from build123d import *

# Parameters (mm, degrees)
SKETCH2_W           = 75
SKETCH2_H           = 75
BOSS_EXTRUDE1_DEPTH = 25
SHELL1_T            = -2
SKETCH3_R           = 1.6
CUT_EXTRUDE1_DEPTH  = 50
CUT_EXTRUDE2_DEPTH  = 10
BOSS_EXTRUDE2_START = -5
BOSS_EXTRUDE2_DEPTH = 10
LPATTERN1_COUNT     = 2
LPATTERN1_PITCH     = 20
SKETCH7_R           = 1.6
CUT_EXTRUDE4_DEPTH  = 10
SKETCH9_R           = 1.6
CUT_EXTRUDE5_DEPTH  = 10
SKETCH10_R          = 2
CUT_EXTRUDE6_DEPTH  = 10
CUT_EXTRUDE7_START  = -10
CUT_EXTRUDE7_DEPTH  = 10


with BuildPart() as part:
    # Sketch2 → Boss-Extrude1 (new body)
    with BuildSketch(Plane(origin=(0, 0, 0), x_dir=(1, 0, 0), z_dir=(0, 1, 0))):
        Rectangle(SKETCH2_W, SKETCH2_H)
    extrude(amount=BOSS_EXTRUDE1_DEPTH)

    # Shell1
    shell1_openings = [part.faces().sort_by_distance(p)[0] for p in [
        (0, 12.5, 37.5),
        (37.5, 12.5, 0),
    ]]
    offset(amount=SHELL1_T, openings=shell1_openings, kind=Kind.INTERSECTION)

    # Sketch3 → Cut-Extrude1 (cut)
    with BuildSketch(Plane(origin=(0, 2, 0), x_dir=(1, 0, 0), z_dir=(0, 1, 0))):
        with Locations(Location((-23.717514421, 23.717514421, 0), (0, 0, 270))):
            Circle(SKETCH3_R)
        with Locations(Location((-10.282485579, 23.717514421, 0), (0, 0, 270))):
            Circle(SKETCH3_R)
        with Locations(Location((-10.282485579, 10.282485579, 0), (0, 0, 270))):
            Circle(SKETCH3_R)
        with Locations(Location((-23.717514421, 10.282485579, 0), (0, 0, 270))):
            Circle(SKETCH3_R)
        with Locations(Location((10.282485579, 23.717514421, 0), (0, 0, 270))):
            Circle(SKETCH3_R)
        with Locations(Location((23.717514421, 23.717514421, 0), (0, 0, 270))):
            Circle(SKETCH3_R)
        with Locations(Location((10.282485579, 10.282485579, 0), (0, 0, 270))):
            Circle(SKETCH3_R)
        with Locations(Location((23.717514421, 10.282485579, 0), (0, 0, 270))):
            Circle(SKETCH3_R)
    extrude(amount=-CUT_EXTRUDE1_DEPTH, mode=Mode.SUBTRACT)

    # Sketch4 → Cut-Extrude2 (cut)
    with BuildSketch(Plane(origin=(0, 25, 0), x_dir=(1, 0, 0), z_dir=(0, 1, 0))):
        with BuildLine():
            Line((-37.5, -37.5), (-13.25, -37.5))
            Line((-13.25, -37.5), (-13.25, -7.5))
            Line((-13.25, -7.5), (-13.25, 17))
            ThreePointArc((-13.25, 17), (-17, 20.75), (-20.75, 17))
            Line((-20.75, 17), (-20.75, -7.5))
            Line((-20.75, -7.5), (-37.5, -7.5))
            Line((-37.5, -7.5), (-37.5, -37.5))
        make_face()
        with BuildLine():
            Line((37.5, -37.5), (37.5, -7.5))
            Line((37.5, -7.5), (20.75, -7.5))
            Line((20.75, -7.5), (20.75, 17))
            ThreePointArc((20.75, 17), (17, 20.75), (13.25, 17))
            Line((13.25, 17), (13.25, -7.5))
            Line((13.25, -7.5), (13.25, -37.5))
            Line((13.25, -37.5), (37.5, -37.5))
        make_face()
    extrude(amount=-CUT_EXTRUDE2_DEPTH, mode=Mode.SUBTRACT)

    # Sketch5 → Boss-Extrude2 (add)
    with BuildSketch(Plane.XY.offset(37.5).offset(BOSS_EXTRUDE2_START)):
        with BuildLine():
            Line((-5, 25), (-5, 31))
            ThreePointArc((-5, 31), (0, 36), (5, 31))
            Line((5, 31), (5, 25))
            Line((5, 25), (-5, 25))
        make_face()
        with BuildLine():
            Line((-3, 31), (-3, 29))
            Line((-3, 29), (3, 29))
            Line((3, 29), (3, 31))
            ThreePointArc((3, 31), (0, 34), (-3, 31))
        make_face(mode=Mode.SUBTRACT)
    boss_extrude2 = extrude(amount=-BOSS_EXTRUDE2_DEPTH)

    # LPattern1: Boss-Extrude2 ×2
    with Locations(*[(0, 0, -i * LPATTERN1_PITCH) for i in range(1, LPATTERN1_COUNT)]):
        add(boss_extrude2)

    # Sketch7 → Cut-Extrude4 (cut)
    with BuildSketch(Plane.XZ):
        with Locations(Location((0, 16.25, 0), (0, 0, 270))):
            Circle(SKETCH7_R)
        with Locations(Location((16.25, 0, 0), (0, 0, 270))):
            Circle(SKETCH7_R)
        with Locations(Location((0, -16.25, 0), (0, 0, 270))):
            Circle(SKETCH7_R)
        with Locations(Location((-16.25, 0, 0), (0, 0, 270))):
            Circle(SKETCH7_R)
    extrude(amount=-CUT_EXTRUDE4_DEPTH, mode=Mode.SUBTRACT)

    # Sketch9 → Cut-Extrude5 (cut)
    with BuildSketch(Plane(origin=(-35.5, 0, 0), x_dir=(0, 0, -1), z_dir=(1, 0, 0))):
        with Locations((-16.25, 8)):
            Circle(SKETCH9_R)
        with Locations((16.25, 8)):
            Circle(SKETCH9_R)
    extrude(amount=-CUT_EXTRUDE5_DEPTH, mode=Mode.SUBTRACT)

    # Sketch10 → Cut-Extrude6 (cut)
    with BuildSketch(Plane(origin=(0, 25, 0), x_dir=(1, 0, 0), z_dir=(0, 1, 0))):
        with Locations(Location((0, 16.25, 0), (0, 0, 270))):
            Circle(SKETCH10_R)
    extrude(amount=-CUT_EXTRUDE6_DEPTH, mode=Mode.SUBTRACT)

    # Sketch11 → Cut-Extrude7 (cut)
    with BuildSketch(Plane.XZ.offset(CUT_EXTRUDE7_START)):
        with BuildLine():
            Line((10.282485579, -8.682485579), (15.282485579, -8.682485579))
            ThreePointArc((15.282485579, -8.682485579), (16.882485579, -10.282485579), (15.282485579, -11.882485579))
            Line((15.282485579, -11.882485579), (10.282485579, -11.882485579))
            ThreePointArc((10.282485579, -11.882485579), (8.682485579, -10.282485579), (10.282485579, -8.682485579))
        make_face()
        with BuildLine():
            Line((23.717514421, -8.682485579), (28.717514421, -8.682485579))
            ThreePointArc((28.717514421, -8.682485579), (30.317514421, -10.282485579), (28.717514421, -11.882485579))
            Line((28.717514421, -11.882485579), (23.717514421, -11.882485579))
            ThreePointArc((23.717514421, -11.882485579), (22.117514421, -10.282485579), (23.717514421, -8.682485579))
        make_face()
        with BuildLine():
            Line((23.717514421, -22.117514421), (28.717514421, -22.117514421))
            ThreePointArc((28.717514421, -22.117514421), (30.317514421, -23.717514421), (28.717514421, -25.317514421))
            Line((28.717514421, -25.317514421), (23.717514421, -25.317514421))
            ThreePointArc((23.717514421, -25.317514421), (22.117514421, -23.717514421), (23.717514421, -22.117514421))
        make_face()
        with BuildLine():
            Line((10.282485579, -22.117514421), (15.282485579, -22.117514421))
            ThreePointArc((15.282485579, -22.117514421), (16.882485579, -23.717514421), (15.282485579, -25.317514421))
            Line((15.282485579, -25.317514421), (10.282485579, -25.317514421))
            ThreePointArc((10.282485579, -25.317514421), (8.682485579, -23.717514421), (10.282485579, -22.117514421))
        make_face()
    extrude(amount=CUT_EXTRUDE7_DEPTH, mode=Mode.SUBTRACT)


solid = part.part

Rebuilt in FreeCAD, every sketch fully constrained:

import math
import FreeCAD as App
import Part
import Sketcher


def faces_at(feature, points):
    """Names of the faces that lie closest to the given points."""
    faces = feature.Shape.Faces
    near = lambda p: min(range(len(faces)), key=lambda i: faces[i].distToShape(Part.Vertex(*p))[0])
    return sorted({f"Face{near(p) + 1}" for p in points})

doc = App.newDocument("Part")
body = doc.addObject("PartDesign::Body", "Body")

sketch1 = body.newObject("Sketcher::SketchObject", "Sketch")
sketch1.AttachmentSupport = (doc.getObject("XZ_Plane"), [""])
sketch1.MapMode = "FlatFace"
sketch1.addGeometry(Part.LineSegment(App.Vector(-38, -38, 0), App.Vector(-38, 38, 0)), False)
sketch1.addGeometry(Part.LineSegment(App.Vector(-38, 38, 0), App.Vector(38, 38, 0)), False)
sketch1.addGeometry(Part.LineSegment(App.Vector(38, 38, 0), App.Vector(38, -38, 0)), False)
sketch1.addGeometry(Part.LineSegment(App.Vector(38, -38, 0), App.Vector(-38, -38, 0)), False)
sketch1.addConstraint(Sketcher.Constraint("Coincident", 0, 2, 1, 1))
sketch1.addConstraint(Sketcher.Constraint("Coincident", 1, 2, 2, 1))
sketch1.addConstraint(Sketcher.Constraint("Coincident", 2, 2, 3, 1))
sketch1.addConstraint(Sketcher.Constraint("Coincident", 3, 2, 0, 1))
sketch1.addConstraint(Sketcher.Constraint("Vertical", 0))
sketch1.addConstraint(Sketcher.Constraint("Horizontal", 1))
sketch1.addConstraint(Sketcher.Constraint("Vertical", 2))
sketch1.addConstraint(Sketcher.Constraint("Horizontal", 3))
sketch1.addConstraint(Sketcher.Constraint("Symmetric", 0, 2, 2, 2, -1, 1))
sketch1.addConstraint(Sketcher.Constraint("Equal", 3, 0))
sketch1.addConstraint(Sketcher.Constraint("DistanceX", 1, 1, 1, 2, 75.0))
pad1 = body.newObject("PartDesign::Pad", "Pad")
pad1.Profile = sketch1
pad1.Length = 25
pad1.Reversed = True
doc.recompute()

thickness = body.newObject("PartDesign::Thickness", "Thickness")
thickness.Base = (pad1, faces_at(pad1, [(0, 12.5, 37.5), (37.5, 12.5, 0)]))
thickness.Value = 2
thickness.Reversed = True
thickness.Join = "Intersection"

sketch2 = body.newObject("Sketcher::SketchObject", "Sketch001")
sketch2.AttachmentSupport = (doc.getObject("XZ_Plane"), [""])
sketch2.MapMode = "FlatFace"
sketch2.AttachmentOffset = App.Placement(App.Vector(0, 0, -2), App.Rotation())
sketch2.addGeometry(Part.Circle(App.Vector(-23.7, -23.7, 0), App.Vector(0, 0, 1), 1.6), False)
sketch2.addGeometry(Part.Circle(App.Vector(-10.3, -23.7, 0), App.Vector(0, 0, 1), 1.6), False)
sketch2.addGeometry(Part.Circle(App.Vector(-10.3, -10.3, 0), App.Vector(0, 0, 1), 1.6), False)
sketch2.addGeometry(Part.Circle(App.Vector(-23.7, -10.3, 0), App.Vector(0, 0, 1), 1.6), False)
sketch2.addGeometry(Part.Circle(App.Vector(10.3, -23.7, 0), App.Vector(0, 0, 1), 1.6), False)
sketch2.addGeometry(Part.Circle(App.Vector(23.7, -23.7, 0), App.Vector(0, 0, 1), 1.6), False)
sketch2.addGeometry(Part.Circle(App.Vector(10.3, -10.3, 0), App.Vector(0, 0, 1), 1.6), False)
sketch2.addGeometry(Part.Circle(App.Vector(23.7, -10.3, 0), App.Vector(0, 0, 1), 1.6), False)
sketch2.addConstraint(Sketcher.Constraint("Equal", 0, 1))
sketch2.addConstraint(Sketcher.Constraint("Equal", 1, 2))
sketch2.addConstraint(Sketcher.Constraint("Equal", 2, 3))
sketch2.addConstraint(Sketcher.Constraint("Equal", 3, 4))
sketch2.addConstraint(Sketcher.Constraint("Equal", 4, 5))
sketch2.addConstraint(Sketcher.Constraint("Equal", 5, 6))
sketch2.addConstraint(Sketcher.Constraint("Equal", 6, 7))
sketch2.addConstraint(Sketcher.Constraint("Symmetric", 1, 3, 4, 3, -2))
sketch2.addConstraint(Sketcher.Constraint("Symmetric", 0, 3, 5, 3, -2))
sketch2.addConstraint(Sketcher.Constraint("Symmetric", 2, 3, 6, 3, -2))
sketch2.addConstraint(Sketcher.Constraint("Symmetric", 3, 3, 7, 3, -2))
sketch2.addConstraint(Sketcher.Constraint("Horizontal", 0, 3, 1, 3))
sketch2.addConstraint(Sketcher.Constraint("Horizontal", 2, 3, 3, 3))
sketch2.addConstraint(Sketcher.Constraint("Vertical", 1, 3, 2, 3))
sketch2.addConstraint(Sketcher.Constraint("Vertical", 0, 3, 3, 3))
sketch2.addConstraint(Sketcher.Constraint("Diameter", 0, 3.2))
sketch2.addConstraint(Sketcher.Constraint("DistanceX", 0, 3, 4, 3, 34.0))
sketch2.addConstraint(Sketcher.Constraint("DistanceX", 0, 3, 1, 3, 13.435029))
sketch2.addConstraint(Sketcher.Constraint("DistanceY", 1, 3, 2, 3, 13.435029))
sketch2.addConstraint(Sketcher.Constraint("DistanceY", 0, 3, -1, 1, 23.717514))
pocket1 = body.newObject("PartDesign::Pocket", "Pocket")
pocket1.Profile = sketch2
pocket1.Length = 50
pocket1.Reversed = True

sketch3 = body.newObject("Sketcher::SketchObject", "Sketch002")
sketch3.AttachmentSupport = (doc.getObject("XZ_Plane"), [""])
sketch3.MapMode = "FlatFace"
sketch3.AttachmentOffset = App.Placement(App.Vector(0, 0, -25), App.Rotation())
sketch3.addGeometry(Part.LineSegment(App.Vector(-37.5, 37.5, 0), App.Vector(-13.2, 37.5, 0)), False)
sketch3.addGeometry(Part.LineSegment(App.Vector(-13.2, 37.5, 0), App.Vector(-13.2, -17, 0)), False)
sketch3.addGeometry(Part.ArcOfCircle(Part.Circle(App.Vector(-17, -17, 0), App.Vector(0, 0, 1), 3.8), math.radians(180), math.radians(360)), False)
sketch3.addGeometry(Part.LineSegment(App.Vector(-20.8, -17, 0), App.Vector(-20.8, 7.5, 0)), False)
sketch3.addGeometry(Part.LineSegment(App.Vector(-20.8, 7.5, 0), App.Vector(-37.5, 7.5, 0)), False)
sketch3.addGeometry(Part.LineSegment(App.Vector(-37.5, 7.5, 0), App.Vector(-37.5, 37.5, 0)), False)
sketch3.addGeometry(Part.LineSegment(App.Vector(37.5, 37.5, 0), App.Vector(37.5, 7.5, 0)), False)
sketch3.addGeometry(Part.LineSegment(App.Vector(37.5, 7.5, 0), App.Vector(20.8, 7.5, 0)), False)
sketch3.addGeometry(Part.LineSegment(App.Vector(20.8, 7.5, 0), App.Vector(20.8, -17, 0)), False)
sketch3.addGeometry(Part.ArcOfCircle(Part.Circle(App.Vector(17, -17, 0), App.Vector(0, 0, 1), 3.8), math.radians(180), math.radians(360)), False)
sketch3.addGeometry(Part.LineSegment(App.Vector(13.2, -17, 0), App.Vector(13.2, 37.5, 0)), False)
sketch3.addGeometry(Part.LineSegment(App.Vector(13.2, 37.5, 0), App.Vector(37.5, 37.5, 0)), False)
sketch3.addConstraint(Sketcher.Constraint("Coincident", 0, 2, 1, 1))
sketch3.addConstraint(Sketcher.Constraint("Tangent", 1, 2, 2, 2))
sketch3.addConstraint(Sketcher.Constraint("Tangent", 2, 1, 3, 1))
sketch3.addConstraint(Sketcher.Constraint("Coincident", 3, 2, 4, 1))
sketch3.addConstraint(Sketcher.Constraint("Coincident", 4, 2, 5, 1))
sketch3.addConstraint(Sketcher.Constraint("Coincident", 5, 2, 0, 1))
sketch3.addConstraint(Sketcher.Constraint("Coincident", 6, 2, 7, 1))
sketch3.addConstraint(Sketcher.Constraint("Coincident", 7, 2, 8, 1))
sketch3.addConstraint(Sketcher.Constraint("Tangent", 8, 2, 9, 2))
sketch3.addConstraint(Sketcher.Constraint("Tangent", 9, 1, 10, 1))
sketch3.addConstraint(Sketcher.Constraint("Coincident", 10, 2, 11, 1))
sketch3.addConstraint(Sketcher.Constraint("Coincident", 11, 2, 6, 1))
sketch3.addConstraint(Sketcher.Constraint("Horizontal", 0))
sketch3.addConstraint(Sketcher.Constraint("Vertical", 1))
sketch3.addConstraint(Sketcher.Constraint("Vertical", 3))
sketch3.addConstraint(Sketcher.Constraint("Horizontal", 4))
sketch3.addConstraint(Sketcher.Constraint("Vertical", 5))
sketch3.addConstraint(Sketcher.Constraint("Vertical", 6))
sketch3.addConstraint(Sketcher.Constraint("Horizontal", 7))
sketch3.addConstraint(Sketcher.Constraint("Vertical", 8))
sketch3.addConstraint(Sketcher.Constraint("Vertical", 10))
sketch3.addConstraint(Sketcher.Constraint("Horizontal", 11))
sketch3.addConstraint(Sketcher.Constraint("Equal", 2, 9))
sketch3.addConstraint(Sketcher.Constraint("Symmetric", 2, 3, 9, 3, -2))
sketch3.addConstraint(Sketcher.Constraint("Symmetric", 4, 2, 6, 2, -2))
sketch3.addConstraint(Sketcher.Constraint("Horizontal", 5, 2, 10, 2))
sketch3.addConstraint(Sketcher.Constraint("DistanceY", 5, 1, 5, 2, 30.0))
sketch3.addConstraint(Sketcher.Constraint("Radius", 2, 3.75))
sketch3.addConstraint(Sketcher.Constraint("DistanceY", 1, 2, 1, 1, 54.5))
sketch3.addConstraint(Sketcher.Constraint("DistanceX", 2, 3, -1, 1, 17.0))
sketch3.addConstraint(Sketcher.Constraint("DistanceY", 2, 3, -1, 1, 17.0))
sketch3.addConstraint(Sketcher.Constraint("DistanceX", 0, 1, 0, 2, 24.25))
pocket2 = body.newObject("PartDesign::Pocket", "Pocket001")
pocket2.Profile = sketch3
pocket2.Length = 10
pocket2.Reversed = True

sketch4 = body.newObject("Sketcher::SketchObject", "Sketch003")
sketch4.AttachmentSupport = (doc.getObject("XY_Plane"), [""])
sketch4.MapMode = "FlatFace"
sketch4.AttachmentOffset = App.Placement(App.Vector(0, 0, 32.5), App.Rotation())
sketch4.addGeometry(Part.LineSegment(App.Vector(-5, 31, 0), App.Vector(-5, 25, 0)), False)
sketch4.addGeometry(Part.LineSegment(App.Vector(-5, 25, 0), App.Vector(5, 25, 0)), False)
sketch4.addGeometry(Part.LineSegment(App.Vector(5, 25, 0), App.Vector(5, 31, 0)), False)
sketch4.addGeometry(Part.ArcOfCircle(Part.Circle(App.Vector(0, 31, 0), App.Vector(0, 0, 1), 5), math.radians(0), math.radians(180)), False)
sketch4.addGeometry(Part.ArcOfCircle(Part.Circle(App.Vector(0, 31, 0), App.Vector(0, 0, 1), 3), math.radians(0), math.radians(180)), False)
sketch4.addGeometry(Part.LineSegment(App.Vector(3, 31, 0), App.Vector(3, 29, 0)), False)
sketch4.addGeometry(Part.LineSegment(App.Vector(3, 29, 0), App.Vector(-3, 29, 0)), False)
sketch4.addGeometry(Part.LineSegment(App.Vector(-3, 29, 0), App.Vector(-3, 31, 0)), False)
sketch4.addConstraint(Sketcher.Constraint("Coincident", 0, 2, 1, 1))
sketch4.addConstraint(Sketcher.Constraint("Coincident", 1, 2, 2, 1))
sketch4.addConstraint(Sketcher.Constraint("Tangent", 2, 2, 3, 1))
sketch4.addConstraint(Sketcher.Constraint("Tangent", 3, 2, 0, 1))
sketch4.addConstraint(Sketcher.Constraint("Tangent", 4, 1, 5, 1))
sketch4.addConstraint(Sketcher.Constraint("Coincident", 5, 2, 6, 1))
sketch4.addConstraint(Sketcher.Constraint("Coincident", 6, 2, 7, 1))
sketch4.addConstraint(Sketcher.Constraint("Tangent", 7, 2, 4, 2))
sketch4.addConstraint(Sketcher.Constraint("Vertical", 0))
sketch4.addConstraint(Sketcher.Constraint("Horizontal", 1))
sketch4.addConstraint(Sketcher.Constraint("Vertical", 2))
sketch4.addConstraint(Sketcher.Constraint("Vertical", 5))
sketch4.addConstraint(Sketcher.Constraint("Horizontal", 6))
sketch4.addConstraint(Sketcher.Constraint("Vertical", 7))
sketch4.addConstraint(Sketcher.Constraint("Coincident", 4, 3, 3, 3))
sketch4.addConstraint(Sketcher.Constraint("PointOnObject", 3, 3, -2))
sketch4.addConstraint(Sketcher.Constraint("Equal", 6, 0))
sketch4.addConstraint(Sketcher.Constraint("Radius", 3, 5.0))
sketch4.addConstraint(Sketcher.Constraint("Radius", 4, 3.0))
sketch4.addConstraint(Sketcher.Constraint("DistanceY", 5, 2, 5, 1, 2.0))
sketch4.addConstraint(Sketcher.Constraint("DistanceY", -1, 1, 3, 3, 31.0))
pad2 = body.newObject("PartDesign::Pad", "Pad001")
pad2.Profile = sketch4
pad2.Length = 10
pad2.Reversed = True
doc.recompute()

linearpattern = body.newObject("PartDesign::LinearPattern", "LinearPattern")
linearpattern.Originals = [pad2]
linearpattern.Direction = (doc.getObject("Z_Axis"), [""])
linearpattern.Mode = "offset"
linearpattern.Offset = 20
linearpattern.Occurrences = 2
linearpattern.Reversed = True
body.Tip = linearpattern

sketch5 = body.newObject("Sketcher::SketchObject", "Sketch004")
sketch5.AttachmentSupport = (doc.getObject("XZ_Plane"), [""])
sketch5.MapMode = "FlatFace"
sketch5.addGeometry(Part.Circle(App.Vector(0, 16.2, 0), App.Vector(0, 0, 1), 1.6), False)
sketch5.addGeometry(Part.Circle(App.Vector(16.2, 0, 0), App.Vector(0, 0, 1), 1.6), False)
sketch5.addGeometry(Part.Circle(App.Vector(0, -16.2, 0), App.Vector(0, 0, 1), 1.6), False)
sketch5.addGeometry(Part.Circle(App.Vector(-16.2, 0, 0), App.Vector(0, 0, 1), 1.6), False)
sketch5.addConstraint(Sketcher.Constraint("Equal", 0, 1))
sketch5.addConstraint(Sketcher.Constraint("Equal", 1, 2))
sketch5.addConstraint(Sketcher.Constraint("Equal", 2, 3))
sketch5.addConstraint(Sketcher.Constraint("Symmetric", 0, 3, 2, 3, -1, 1))
sketch5.addConstraint(Sketcher.Constraint("Symmetric", 1, 3, 3, 3, -1, 1))
sketch5.addConstraint(Sketcher.Constraint("PointOnObject", 0, 3, -2))
sketch5.addConstraint(Sketcher.Constraint("PointOnObject", 1, 3, -1))
sketch5.addConstraint(Sketcher.Constraint("Diameter", 0, 3.2))
sketch5.addConstraint(Sketcher.Constraint("DistanceY", 2, 3, 0, 3, 32.5))
sketch5.addConstraint(Sketcher.Constraint("DistanceX", 3, 3, 1, 3, 32.5))
pocket3 = body.newObject("PartDesign::Pocket", "Pocket002")
pocket3.Profile = sketch5
pocket3.Length = 10

sketch6 = body.newObject("Sketcher::SketchObject", "Sketch005")
sketch6.AttachmentSupport = (doc.getObject("YZ_Plane"), [""])
sketch6.MapMode = "FlatFace"
sketch6.AttachmentOffset = App.Placement(App.Vector(0, 0, -35.5), App.Rotation())
sketch6.addGeometry(Part.Circle(App.Vector(8, 16.2, 0), App.Vector(0, 0, 1), 1.6), False)
sketch6.addGeometry(Part.Circle(App.Vector(8, -16.2, 0), App.Vector(0, 0, 1), 1.6), False)
sketch6.addConstraint(Sketcher.Constraint("Equal", 0, 1))
sketch6.addConstraint(Sketcher.Constraint("Symmetric", 0, 3, 1, 3, -1))
sketch6.addConstraint(Sketcher.Constraint("Diameter", 0, 3.2))
sketch6.addConstraint(Sketcher.Constraint("DistanceX", -1, 1, 0, 3, 8.0))
sketch6.addConstraint(Sketcher.Constraint("DistanceY", 1, 3, 0, 3, 32.5))
pocket4 = body.newObject("PartDesign::Pocket", "Pocket003")
pocket4.Profile = sketch6
pocket4.Length = 10

sketch7 = body.newObject("Sketcher::SketchObject", "Sketch006")
sketch7.AttachmentSupport = (doc.getObject("XZ_Plane"), [""])
sketch7.MapMode = "FlatFace"
sketch7.AttachmentOffset = App.Placement(App.Vector(0, 0, -25), App.Rotation())
sketch7.addGeometry(Part.Circle(App.Vector(0, -16.2, 0), App.Vector(0, 0, 1), 2), False)
sketch7.addConstraint(Sketcher.Constraint("PointOnObject", 0, 3, -2))
sketch7.addConstraint(Sketcher.Constraint("Diameter", 0, 4.0))
sketch7.addConstraint(Sketcher.Constraint("DistanceY", 0, 3, -1, 1, 16.25))
pocket5 = body.newObject("PartDesign::Pocket", "Pocket004")
pocket5.Profile = sketch7
pocket5.Length = 10
pocket5.Reversed = True

sketch8 = body.newObject("Sketcher::SketchObject", "Sketch007")
sketch8.AttachmentSupport = (doc.getObject("XZ_Plane"), [""])
sketch8.MapMode = "FlatFace"
sketch8.AttachmentOffset = App.Placement(App.Vector(0, 0, -10), App.Rotation())
sketch8.addGeometry(Part.LineSegment(App.Vector(15.3, -8.7, 0), App.Vector(10.3, -8.7, 0)), False)
sketch8.addGeometry(Part.ArcOfCircle(Part.Circle(App.Vector(10.3, -10.3, 0), App.Vector(0, 0, 1), 1.6), math.radians(90), math.radians(270)), False)
sketch8.addGeometry(Part.LineSegment(App.Vector(10.3, -11.9, 0), App.Vector(15.3, -11.9, 0)), False)
sketch8.addGeometry(Part.ArcOfCircle(Part.Circle(App.Vector(15.3, -10.3, 0), App.Vector(0, 0, 1), 1.6), math.radians(-90), math.radians(90)), False)
sketch8.addGeometry(Part.LineSegment(App.Vector(28.7, -8.7, 0), App.Vector(23.7, -8.7, 0)), False)
sketch8.addGeometry(Part.ArcOfCircle(Part.Circle(App.Vector(23.7, -10.3, 0), App.Vector(0, 0, 1), 1.6), math.radians(90), math.radians(270)), False)
sketch8.addGeometry(Part.LineSegment(App.Vector(23.7, -11.9, 0), App.Vector(28.7, -11.9, 0)), False)
sketch8.addGeometry(Part.ArcOfCircle(Part.Circle(App.Vector(28.7, -10.3, 0), App.Vector(0, 0, 1), 1.6), math.radians(-90), math.radians(90)), False)
sketch8.addGeometry(Part.LineSegment(App.Vector(28.7, -22.1, 0), App.Vector(23.7, -22.1, 0)), False)
sketch8.addGeometry(Part.ArcOfCircle(Part.Circle(App.Vector(23.7, -23.7, 0), App.Vector(0, 0, 1), 1.6), math.radians(90), math.radians(270)), False)
sketch8.addGeometry(Part.LineSegment(App.Vector(23.7, -25.3, 0), App.Vector(28.7, -25.3, 0)), False)
sketch8.addGeometry(Part.ArcOfCircle(Part.Circle(App.Vector(28.7, -23.7, 0), App.Vector(0, 0, 1), 1.6), math.radians(-90), math.radians(90)), False)
sketch8.addGeometry(Part.LineSegment(App.Vector(15.3, -22.1, 0), App.Vector(10.3, -22.1, 0)), False)
sketch8.addGeometry(Part.ArcOfCircle(Part.Circle(App.Vector(10.3, -23.7, 0), App.Vector(0, 0, 1), 1.6), math.radians(90), math.radians(270)), False)
sketch8.addGeometry(Part.LineSegment(App.Vector(10.3, -25.3, 0), App.Vector(15.3, -25.3, 0)), False)
sketch8.addGeometry(Part.ArcOfCircle(Part.Circle(App.Vector(15.3, -23.7, 0), App.Vector(0, 0, 1), 1.6), math.radians(-90), math.radians(90)), False)
sketch8.addConstraint(Sketcher.Constraint("Tangent", 0, 2, 1, 1))
sketch8.addConstraint(Sketcher.Constraint("Tangent", 1, 2, 2, 1))
sketch8.addConstraint(Sketcher.Constraint("Tangent", 2, 2, 3, 1))
sketch8.addConstraint(Sketcher.Constraint("Tangent", 3, 2, 0, 1))
sketch8.addConstraint(Sketcher.Constraint("Tangent", 4, 2, 5, 1))
sketch8.addConstraint(Sketcher.Constraint("Tangent", 5, 2, 6, 1))
sketch8.addConstraint(Sketcher.Constraint("Tangent", 6, 2, 7, 1))
sketch8.addConstraint(Sketcher.Constraint("Tangent", 7, 2, 4, 1))
sketch8.addConstraint(Sketcher.Constraint("Tangent", 8, 2, 9, 1))
sketch8.addConstraint(Sketcher.Constraint("Tangent", 9, 2, 10, 1))
sketch8.addConstraint(Sketcher.Constraint("Tangent", 10, 2, 11, 1))
sketch8.addConstraint(Sketcher.Constraint("Tangent", 11, 2, 8, 1))
sketch8.addConstraint(Sketcher.Constraint("Tangent", 12, 2, 13, 1))
sketch8.addConstraint(Sketcher.Constraint("Tangent", 13, 2, 14, 1))
sketch8.addConstraint(Sketcher.Constraint("Tangent", 14, 2, 15, 1))
sketch8.addConstraint(Sketcher.Constraint("Tangent", 15, 2, 12, 1))
sketch8.addConstraint(Sketcher.Constraint("Horizontal", 0))
sketch8.addConstraint(Sketcher.Constraint("Horizontal", 2))
sketch8.addConstraint(Sketcher.Constraint("Horizontal", 4))
sketch8.addConstraint(Sketcher.Constraint("Horizontal", 6))
sketch8.addConstraint(Sketcher.Constraint("Horizontal", 8))
sketch8.addConstraint(Sketcher.Constraint("Horizontal", 10))
sketch8.addConstraint(Sketcher.Constraint("Horizontal", 12))
sketch8.addConstraint(Sketcher.Constraint("Horizontal", 14))
sketch8.addConstraint(Sketcher.Constraint("Equal", 3, 5))
sketch8.addConstraint(Sketcher.Constraint("Equal", 7, 9))
sketch8.addConstraint(Sketcher.Constraint("Equal", 11, 13))
sketch8.addConstraint(Sketcher.Constraint("Horizontal", 3, 3, 5, 3))
sketch8.addConstraint(Sketcher.Constraint("Horizontal", 11, 3, 13, 3))
sketch8.addConstraint(Sketcher.Constraint("Vertical", 5, 3, 9, 3))
sketch8.addConstraint(Sketcher.Constraint("Vertical", 7, 3, 11, 3))
sketch8.addConstraint(Sketcher.Constraint("Vertical", 1, 3, 13, 3))
sketch8.addConstraint(Sketcher.Constraint("Vertical", 3, 3, 15, 3))
sketch8.addConstraint(Sketcher.Constraint("Equal", 2, 4))
sketch8.addConstraint(Sketcher.Constraint("Radius", 1, 1.6))
sketch8.addConstraint(Sketcher.Constraint("DistanceX", 0, 2, 0, 1, 5.0))
sketch8.addConstraint(Sketcher.Constraint("DistanceX", 3, 3, 5, 3, 8.435029))
sketch8.addConstraint(Sketcher.Constraint("DistanceY", 9, 3, 5, 3, 13.435029))
sketch8.addConstraint(Sketcher.Constraint("DistanceX", -1, 1, 1, 3, 10.282486))
sketch8.addConstraint(Sketcher.Constraint("DistanceY", 1, 3, -1, 1, 10.282486))
pocket6 = body.newObject("PartDesign::Pocket", "Pocket005")
pocket6.Profile = sketch8
pocket6.Length = 10
pocket6.Reversed = True

doc.recompute()
